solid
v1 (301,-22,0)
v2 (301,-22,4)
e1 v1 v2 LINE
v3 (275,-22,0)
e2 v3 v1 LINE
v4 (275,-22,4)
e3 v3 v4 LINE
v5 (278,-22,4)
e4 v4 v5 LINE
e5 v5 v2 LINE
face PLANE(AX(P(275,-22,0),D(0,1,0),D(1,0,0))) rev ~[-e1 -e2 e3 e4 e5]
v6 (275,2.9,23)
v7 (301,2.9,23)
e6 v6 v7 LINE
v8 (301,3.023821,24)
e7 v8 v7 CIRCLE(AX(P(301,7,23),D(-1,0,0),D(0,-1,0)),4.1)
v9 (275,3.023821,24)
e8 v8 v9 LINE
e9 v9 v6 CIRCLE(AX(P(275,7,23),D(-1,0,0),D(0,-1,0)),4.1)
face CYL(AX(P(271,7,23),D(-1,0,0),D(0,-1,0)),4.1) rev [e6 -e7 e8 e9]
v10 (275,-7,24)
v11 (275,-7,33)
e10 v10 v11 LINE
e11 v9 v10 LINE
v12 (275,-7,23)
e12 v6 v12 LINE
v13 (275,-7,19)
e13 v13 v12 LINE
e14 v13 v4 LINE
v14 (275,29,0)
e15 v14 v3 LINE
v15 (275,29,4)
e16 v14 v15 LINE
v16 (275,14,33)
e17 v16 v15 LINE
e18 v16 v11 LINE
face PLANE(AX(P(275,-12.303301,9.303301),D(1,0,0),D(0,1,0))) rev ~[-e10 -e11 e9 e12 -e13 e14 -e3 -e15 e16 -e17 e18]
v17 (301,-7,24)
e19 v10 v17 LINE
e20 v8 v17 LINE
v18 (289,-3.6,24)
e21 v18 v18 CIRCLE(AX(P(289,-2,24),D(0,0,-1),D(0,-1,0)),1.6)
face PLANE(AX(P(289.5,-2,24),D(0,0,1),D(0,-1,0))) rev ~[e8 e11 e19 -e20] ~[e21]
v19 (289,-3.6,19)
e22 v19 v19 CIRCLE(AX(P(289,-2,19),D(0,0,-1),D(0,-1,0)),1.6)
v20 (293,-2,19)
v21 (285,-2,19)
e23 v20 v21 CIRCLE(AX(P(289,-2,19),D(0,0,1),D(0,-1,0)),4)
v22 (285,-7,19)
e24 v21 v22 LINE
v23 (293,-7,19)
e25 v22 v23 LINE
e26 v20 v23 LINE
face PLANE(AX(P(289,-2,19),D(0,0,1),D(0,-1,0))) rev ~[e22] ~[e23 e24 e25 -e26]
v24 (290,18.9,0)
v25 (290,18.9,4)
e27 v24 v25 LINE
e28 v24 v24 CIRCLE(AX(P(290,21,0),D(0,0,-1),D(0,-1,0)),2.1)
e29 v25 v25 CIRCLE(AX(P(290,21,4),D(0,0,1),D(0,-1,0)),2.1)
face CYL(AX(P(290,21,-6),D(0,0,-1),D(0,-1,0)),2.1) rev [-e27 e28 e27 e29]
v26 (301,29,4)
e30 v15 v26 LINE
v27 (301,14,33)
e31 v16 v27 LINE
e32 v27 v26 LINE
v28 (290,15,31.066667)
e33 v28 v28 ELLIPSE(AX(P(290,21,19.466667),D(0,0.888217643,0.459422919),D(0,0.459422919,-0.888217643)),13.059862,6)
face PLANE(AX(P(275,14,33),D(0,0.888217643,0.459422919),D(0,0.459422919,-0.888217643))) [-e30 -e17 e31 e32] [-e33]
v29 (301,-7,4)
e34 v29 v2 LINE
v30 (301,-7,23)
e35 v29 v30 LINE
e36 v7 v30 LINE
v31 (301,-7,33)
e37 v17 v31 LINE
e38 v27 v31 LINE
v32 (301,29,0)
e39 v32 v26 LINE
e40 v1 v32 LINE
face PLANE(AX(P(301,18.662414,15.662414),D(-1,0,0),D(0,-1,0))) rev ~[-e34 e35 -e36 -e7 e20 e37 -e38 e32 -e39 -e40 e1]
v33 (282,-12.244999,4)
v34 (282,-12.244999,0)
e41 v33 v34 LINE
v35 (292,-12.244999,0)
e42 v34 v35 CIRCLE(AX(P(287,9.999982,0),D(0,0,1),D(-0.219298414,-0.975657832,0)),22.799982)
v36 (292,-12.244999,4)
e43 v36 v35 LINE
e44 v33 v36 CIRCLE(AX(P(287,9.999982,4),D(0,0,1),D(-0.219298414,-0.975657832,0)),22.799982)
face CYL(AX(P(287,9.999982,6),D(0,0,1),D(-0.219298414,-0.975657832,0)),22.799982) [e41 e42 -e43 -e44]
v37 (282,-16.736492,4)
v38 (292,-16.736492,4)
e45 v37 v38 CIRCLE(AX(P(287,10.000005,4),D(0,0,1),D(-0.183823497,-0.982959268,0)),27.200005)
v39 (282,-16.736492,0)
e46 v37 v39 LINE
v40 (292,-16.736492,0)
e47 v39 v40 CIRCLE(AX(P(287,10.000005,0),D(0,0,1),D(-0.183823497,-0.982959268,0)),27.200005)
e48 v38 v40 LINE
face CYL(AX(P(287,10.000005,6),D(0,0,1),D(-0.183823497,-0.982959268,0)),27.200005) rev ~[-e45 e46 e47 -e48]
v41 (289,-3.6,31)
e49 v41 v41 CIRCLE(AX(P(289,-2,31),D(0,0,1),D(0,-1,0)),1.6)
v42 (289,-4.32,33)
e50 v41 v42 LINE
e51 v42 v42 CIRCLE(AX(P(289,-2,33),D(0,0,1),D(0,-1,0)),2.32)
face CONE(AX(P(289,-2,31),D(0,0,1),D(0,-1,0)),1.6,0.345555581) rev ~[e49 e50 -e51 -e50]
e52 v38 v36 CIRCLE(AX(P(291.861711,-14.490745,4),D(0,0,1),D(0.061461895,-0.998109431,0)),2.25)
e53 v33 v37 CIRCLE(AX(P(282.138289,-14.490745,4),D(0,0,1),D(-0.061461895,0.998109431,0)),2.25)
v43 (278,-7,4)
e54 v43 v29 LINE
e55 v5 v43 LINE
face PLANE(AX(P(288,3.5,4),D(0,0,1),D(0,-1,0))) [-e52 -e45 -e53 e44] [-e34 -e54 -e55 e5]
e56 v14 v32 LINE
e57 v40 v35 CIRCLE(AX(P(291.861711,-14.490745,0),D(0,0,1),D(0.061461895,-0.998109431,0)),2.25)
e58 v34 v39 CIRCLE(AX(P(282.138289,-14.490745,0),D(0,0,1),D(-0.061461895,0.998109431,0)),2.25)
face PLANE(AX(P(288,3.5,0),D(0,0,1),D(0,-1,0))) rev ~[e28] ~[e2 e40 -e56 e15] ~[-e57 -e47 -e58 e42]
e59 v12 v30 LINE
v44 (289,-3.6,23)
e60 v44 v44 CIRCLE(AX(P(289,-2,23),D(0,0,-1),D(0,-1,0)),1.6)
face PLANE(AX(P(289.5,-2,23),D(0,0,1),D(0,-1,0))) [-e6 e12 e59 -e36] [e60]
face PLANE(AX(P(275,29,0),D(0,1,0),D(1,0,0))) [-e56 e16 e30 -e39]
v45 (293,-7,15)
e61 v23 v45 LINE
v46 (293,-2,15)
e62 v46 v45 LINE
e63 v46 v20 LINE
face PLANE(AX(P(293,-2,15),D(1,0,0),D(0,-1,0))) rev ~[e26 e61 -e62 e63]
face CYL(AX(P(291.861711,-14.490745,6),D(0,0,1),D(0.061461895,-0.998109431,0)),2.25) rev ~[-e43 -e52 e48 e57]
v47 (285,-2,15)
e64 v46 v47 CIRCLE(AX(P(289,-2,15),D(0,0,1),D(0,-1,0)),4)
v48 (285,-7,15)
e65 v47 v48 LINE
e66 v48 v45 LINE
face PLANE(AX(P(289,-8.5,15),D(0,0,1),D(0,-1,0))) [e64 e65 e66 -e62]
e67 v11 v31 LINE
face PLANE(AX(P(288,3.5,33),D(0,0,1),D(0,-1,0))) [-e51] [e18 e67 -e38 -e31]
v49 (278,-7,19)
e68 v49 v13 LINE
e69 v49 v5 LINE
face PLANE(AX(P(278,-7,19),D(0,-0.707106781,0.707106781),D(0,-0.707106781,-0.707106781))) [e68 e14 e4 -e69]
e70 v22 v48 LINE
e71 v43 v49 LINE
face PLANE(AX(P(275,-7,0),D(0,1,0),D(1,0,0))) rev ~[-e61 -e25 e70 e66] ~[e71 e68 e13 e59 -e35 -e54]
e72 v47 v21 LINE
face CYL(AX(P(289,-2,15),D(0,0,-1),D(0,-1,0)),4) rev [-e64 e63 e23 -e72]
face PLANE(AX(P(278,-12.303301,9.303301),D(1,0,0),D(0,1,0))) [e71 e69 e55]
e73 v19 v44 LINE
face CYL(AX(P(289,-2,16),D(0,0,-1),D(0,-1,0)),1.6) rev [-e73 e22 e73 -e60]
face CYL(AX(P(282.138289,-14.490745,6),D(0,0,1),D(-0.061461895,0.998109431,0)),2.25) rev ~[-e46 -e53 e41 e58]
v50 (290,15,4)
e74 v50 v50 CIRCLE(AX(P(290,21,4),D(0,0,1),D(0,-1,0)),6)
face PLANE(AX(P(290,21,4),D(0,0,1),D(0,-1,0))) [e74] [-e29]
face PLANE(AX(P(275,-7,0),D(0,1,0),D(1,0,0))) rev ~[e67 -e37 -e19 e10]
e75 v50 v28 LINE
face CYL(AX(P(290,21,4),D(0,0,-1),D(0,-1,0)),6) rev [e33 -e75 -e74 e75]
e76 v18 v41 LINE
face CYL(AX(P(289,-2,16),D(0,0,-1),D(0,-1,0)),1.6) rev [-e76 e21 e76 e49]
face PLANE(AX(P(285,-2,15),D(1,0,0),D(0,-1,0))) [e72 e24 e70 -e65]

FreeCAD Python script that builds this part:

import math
import FreeCAD as App
import Part
import Sketcher
from FreeCAD import Vector
Q = App.Units.Quantity

doc = App.newDocument("Part")
body = doc.addObject("PartDesign::Body", "Body")

sketch1 = body.newObject("Sketcher::SketchObject", "Sketch")
sketch1.AttachmentSupport = (doc.getObject("XY_Plane"), [""])
sketch1.MapMode = "FlatFace"
sketch1.AttachmentOffset = App.Placement(Vector(0, 0, 10), App.Rotation())
sketch1.addGeometry(Part.Circle(Vector(0, 0, 0), Vector(0, 0, 1), 6), False)
sketch1.addConstraint([
    Sketcher.Constraint("Coincident", 0, 3, -1, 1),
    Sketcher.Constraint("Diameter", 0, Q("12 mm")),
])
pad1 = body.newObject("PartDesign::Pad", "Pad")
pad1.Profile = sketch1
pad1.Length = 30
body2 = doc.addObject("PartDesign::Body", "Body001")

sketch2 = body2.newObject("Sketcher::SketchObject", "Sketch001")
sketch2.AttachmentSupport = (doc.getObject("XY_Plane001"), [""])
sketch2.MapMode = "FlatFace"
sketch2.addGeometry(Part.Circle(Vector(0, 0, 0), Vector(0, 0, 1), 2.1), False)
sketch2.addConstraint([
    Sketcher.Constraint("Coincident", 0, 3, -1, 1),
    Sketcher.Constraint("Diameter", 0, Q("4.2 mm")),
])
pad2 = body2.newObject("PartDesign::Pad", "Pad001")
pad2.Profile = sketch2
pad2.Length = 10
doc.recompute()

boolean = body2.newObject("PartDesign::Boolean", "Boolean")
boolean.Type = "Fuse"
boolean.addObjects([body])
body3 = doc.addObject("PartDesign::Body", "Body002")
doc.recompute()

body2.Placement = App.Placement(Vector(-14, 12, -29), App.Rotation(Vector(0, 0, 1), 0))
boolean2 = body3.newObject("PartDesign::Boolean", "Boolean001")
boolean2.Type = "Fuse"
boolean2.addObjects([body2])
body4 = doc.addObject("PartDesign::Body", "Body003")

sketch3 = body4.newObject("Sketcher::SketchObject", "Sketch002")
sketch3.AttachmentSupport = (doc.getObject("XY_Plane003"), [""])
sketch3.MapMode = "FlatFace"
sketch3.addGeometry(Part.Circle(Vector(0, 0, 0), Vector(0, 0, 1), 1.6), False)
sketch3.addConstraint([
    Sketcher.Constraint("Coincident", 0, 3, -1, 1),
    Sketcher.Constraint("Diameter", 0, Q("3.2 mm")),
])
pad3 = body4.newObject("PartDesign::Pad", "Pad002")
pad3.Profile = sketch3
pad3.Length = 15
body5 = doc.addObject("PartDesign::Body", "Body004")

sketch4 = body5.newObject("Sketcher::SketchObject", "Sketch003")
sketch4.AttachmentSupport = (doc.getObject("XZ_Plane004"), [""])
sketch4.MapMode = "FlatFace"
sketch4.addGeometry([
    Part.LineSegment(Vector(0, 15, 0), Vector(1.6, 15, 0)),
    Part.LineSegment(Vector(1.6, 15, 0), Vector(2.5, 17.5, 0)),
    Part.LineSegment(Vector(2.5, 17.5, 0), Vector(0, 17.5, 0)),
    Part.LineSegment(Vector(0, 17.5, 0), Vector(0, 15, 0)),
], False)
sketch4.addConstraint([
    Sketcher.Constraint("Coincident", 0, 2, 1, 1),
    Sketcher.Constraint("Coincident", 1, 2, 2, 1),
    Sketcher.Constraint("Coincident", 2, 2, 3, 1),
    Sketcher.Constraint("Coincident", 3, 2, 0, 1),
    Sketcher.Constraint("Horizontal", 0),
    Sketcher.Constraint("Horizontal", 2),
    Sketcher.Constraint("Vertical", 3),
    Sketcher.Constraint("PointOnObject", 2, 2, -2),
    Sketcher.Constraint("Equal", 2, 3),
    Sketcher.Constraint("DistanceX", 0, 1, 0, 2, Q("1.6 mm")),
    Sketcher.Constraint("DistanceX", 2, 2, 2, 1, Q("2.5 mm")),
    Sketcher.Constraint("DistanceY", -1, 1, 0, 2, Q("15 mm")),
])
revolution = body5.newObject("PartDesign::Revolution", "Revolution")
revolution.Profile = sketch4
revolution.ReferenceAxis = (sketch4, ["V_Axis"])
revolution.Angle = 360
doc.recompute()

boolean3 = body5.newObject("PartDesign::Boolean", "Boolean002")
boolean3.Type = "Fuse"
boolean3.addObjects([body4])
body6 = doc.addObject("PartDesign::Body", "Body005")
doc.recompute()

body5.Placement = App.Placement(Vector(9, 11, -7), App.Rotation(Vector(0, 0, 1), 0))
boolean4 = body6.newObject("PartDesign::Boolean", "Boolean003")
boolean4.Type = "Fuse"
boolean4.addObjects([body5])
body7 = doc.addObject("PartDesign::Body", "Body006")

sketch5 = body7.newObject("Sketcher::SketchObject", "Sketch004")
sketch5.AttachmentSupport = (doc.getObject("XY_Plane006"), [""])
sketch5.MapMode = "FlatFace"
sketch5.AttachmentOffset = App.Placement(Vector(0, 0, -8), App.Rotation())
sketch5.addGeometry(Part.Circle(Vector(9, 11, 0), Vector(0, 0, 1), 4), False)
sketch5.addConstraint([
    Sketcher.Constraint("Diameter", 0, Q("8 mm")),
    Sketcher.Constraint("DistanceX", -1, 1, 0, 3, Q("9 mm")),
    Sketcher.Constraint("DistanceY", -1, 1, 0, 3, Q("11 mm")),
])
pad4 = body7.newObject("PartDesign::Pad", "Pad003")
pad4.Profile = sketch5
pad4.Length = 4
body8 = doc.addObject("PartDesign::Body", "Body007")

sketch6 = body8.newObject("Sketcher::SketchObject", "Sketch005")
sketch6.AttachmentSupport = (doc.getObject("XY_Plane007"), [""])
sketch6.MapMode = "FlatFace"
sketch6.AttachmentOffset = App.Placement(Vector(0, 0, -8), App.Rotation())
sketch6.addGeometry([
    Part.LineSegment(Vector(9, 15, 0), Vector(9, 7, 0)),
    Part.LineSegment(Vector(9, 7, 0), Vector(22, 7, 0)),
    Part.LineSegment(Vector(22, 7, 0), Vector(22, 15, 0)),
    Part.LineSegment(Vector(22, 15, 0), Vector(9, 15, 0)),
], False)
sketch6.addConstraint([
    Sketcher.Constraint("Coincident", 0, 2, 1, 1),
    Sketcher.Constraint("Coincident", 1, 2, 2, 1),
    Sketcher.Constraint("Coincident", 2, 2, 3, 1),
    Sketcher.Constraint("Coincident", 3, 2, 0, 1),
    Sketcher.Constraint("Vertical", 0),
    Sketcher.Constraint("Horizontal", 1),
    Sketcher.Constraint("Vertical", 2),
    Sketcher.Constraint("Horizontal", 3),
    Sketcher.Constraint("DistanceX", 1, 1, 1, 2, Q("13 mm")),
    Sketcher.Constraint("DistanceY", 0, 2, 0, 1, Q("8 mm")),
    Sketcher.Constraint("DistanceX", -1, 1, 0, 2, Q("9 mm")),
    Sketcher.Constraint("DistanceY", -1, 1, 0, 2, Q("7 mm")),
])
pad5 = body8.newObject("PartDesign::Pad", "Pad004")
pad5.Profile = sketch6
pad5.Length = 4
doc.recompute()

boolean5 = body8.newObject("PartDesign::Boolean", "Boolean004")
boolean5.Type = "Fuse"
boolean5.addObjects([body7])
body9 = doc.addObject("PartDesign::Body", "Body008")

sketch7 = body9.newObject("Sketcher::SketchObject", "Sketch006")
sketch7.AttachmentSupport = (doc.getObject("XZ_Plane008"), [""])
sketch7.MapMode = "FlatFace"
sketch7.addGeometry([
    Part.LineSegment(Vector(-22, -19, 0), Vector(-7, -19, 0)),
    Part.LineSegment(Vector(-7, -19, 0), Vector(-7, -4, 0)),
    Part.LineSegment(Vector(-7, -4, 0), Vector(-22, -19, 0)),
], False)
sketch7.addConstraint([
    Sketcher.Constraint("Coincident", 0, 2, 1, 1),
    Sketcher.Constraint("Coincident", 1, 2, 2, 1),
    Sketcher.Constraint("Coincident", 2, 2, 0, 1),
    Sketcher.Constraint("Horizontal", 0),
    Sketcher.Constraint("Vertical", 1),
    Sketcher.Constraint("Equal", 0, 1),
    Sketcher.Constraint("DistanceX", 0, 1, 0, 2, Q("15 mm")),
    Sketcher.Constraint("DistanceX", 0, 2, -1, 1, Q("7 mm")),
    Sketcher.Constraint("DistanceY", 0, 2, -1, 1, Q("19 mm")),
])
pad6 = body9.newObject("PartDesign::Pad", "Pad005")
pad6.Profile = sketch7
pad6.Length = 3
pad6.Reversed = True
body10 = doc.addObject("PartDesign::Body", "Body009")
doc.recompute()

body9.Placement = App.Placement(Vector(7, 0, 0), App.Rotation(Vector(0, 0, 1), 180))
boolean6 = body10.newObject("PartDesign::Boolean", "Boolean005")
boolean6.Type = "Fuse"
boolean6.addObjects([body9])
body11 = doc.addObject("PartDesign::Body", "Body010")

sketch8 = body11.newObject("Sketcher::SketchObject", "Sketch007")
sketch8.AttachmentSupport = (doc.getObject("XY_Plane010"), [""])
sketch8.MapMode = "FlatFace"
sketch8.addGeometry([
    Part.ArcOfCircle(Part.Circle(Vector(9, 15, 0), Vector(0, 0, 1), 27.2), math.radians(-11), math.radians(11)),
    Part.ArcOfCircle(Part.Circle(Vector(33.5, 19.9, 0), Vector(0, 0, 1), 2.3), math.radians(4), math.radians(176)),
    Part.ArcOfCircle(Part.Circle(Vector(9, 15, 0), Vector(0, 0, 1), 22.8), math.radians(-13), math.radians(13)),
    Part.ArcOfCircle(Part.Circle(Vector(33.5, 10.1, 0), Vector(0, 0, 1), 2.3), math.radians(-176), math.radians(-4)),
], False)
sketch8.addConstraint([
    Sketcher.Constraint("Coincident", 0, 2, 1, 1),
    Sketcher.Constraint("Coincident", 1, 2, 2, 2),
    Sketcher.Constraint("Coincident", 2, 1, 3, 1),
    Sketcher.Constraint("Coincident", 3, 2, 0, 1),
    Sketcher.Constraint("Equal", 1, 3),
    Sketcher.Constraint("Horizontal", 0, 3, 2, 3),
    Sketcher.Constraint("Horizontal", 0, 2, 1, 2),
    Sketcher.Constraint("Horizontal", 2, 1, 3, 2),
    Sketcher.Constraint("Vertical", 1, 3, 3, 3),
    Sketcher.Constraint("Radius", 1, Q("2.25 mm")),
    Sketcher.Constraint("DistanceY", -1, 1, 0, 3, Q("15 mm")),
    Sketcher.Constraint("DistanceY", -1, 1, 0, 2, Q("20 mm")),
    Sketcher.Constraint("DistanceX", -1, 1, 1, 2, Q("31.244999 mm")),
    Sketcher.Constraint("Radius", 0, Q("27.200005 mm")),
    Sketcher.Constraint("Radius", 2, Q("22.799982 mm")),
    Sketcher.Constraint("DistanceY", -1, 1, 1, 3, Q("19.861711 mm")),
])
pad7 = body11.newObject("PartDesign::Pad", "Pad006")
pad7.Profile = sketch8
pad7.Length = 10
pad7.Reversed = True
body12 = doc.addObject("PartDesign::Body", "Body011")
doc.recompute()

body11.Placement = App.Placement(Vector(-12, -3, -17), App.Rotation(Vector(0, 0, 1), 0))
boolean7 = body12.newObject("PartDesign::Boolean", "Boolean006")
boolean7.Type = "Fuse"
boolean7.addObjects([body11])
body13 = doc.addObject("PartDesign::Body", "Body012")

sketch9 = body13.newObject("Sketcher::SketchObject", "Sketch008")
sketch9.AttachmentSupport = (doc.getObject("XY_Plane012"), [""])
sketch9.MapMode = "FlatFace"
sketch9.AttachmentOffset = App.Placement(Vector(0, 0, -23), App.Rotation())
sketch9.addGeometry([
    Part.LineSegment(Vector(-22, 26, 0), Vector(-22, 0, 0)),
    Part.LineSegment(Vector(-22, 0, 0), Vector(29, 0, 0)),
    Part.LineSegment(Vector(29, 0, 0), Vector(29, 26, 0)),
    Part.LineSegment(Vector(29, 26, 0), Vector(-22, 26, 0)),
], False)
sketch9.addConstraint([
    Sketcher.Constraint("Coincident", 0, 2, 1, 1),
    Sketcher.Constraint("Coincident", 1, 2, 2, 1),
    Sketcher.Constraint("Coincident", 2, 2, 3, 1),
    Sketcher.Constraint("Coincident", 3, 2, 0, 1),
    Sketcher.Constraint("Vertical", 0),
    Sketcher.Constraint("Horizontal", 1),
    Sketcher.Constraint("Vertical", 2),
    Sketcher.Constraint("Horizontal", 3),
    Sketcher.Constraint("PointOnObject", 0, 2, -1),
    Sketcher.Constraint("DistanceX", 1, 1, 1, 2, Q("51 mm")),
    Sketcher.Constraint("DistanceY", 0, 2, 0, 1, Q("26 mm")),
    Sketcher.Constraint("DistanceX", 0, 2, -1, 1, Q("22 mm")),
])
pad8 = body13.newObject("PartDesign::Pad", "Pad007")
pad8.Profile = sketch9
pad8.Length = 4
doc.recompute()

boolean8 = body13.newObject("PartDesign::Boolean", "Boolean007")
boolean8.Type = "Cut"
boolean8.addObjects([body12])
body14 = doc.addObject("PartDesign::Body", "Body013")
doc.recompute()

body13.Placement = App.Placement(Vector(0, -3, 0), App.Rotation(Vector(0, 0, 1), 0))
boolean9 = body14.newObject("PartDesign::Boolean", "Boolean008")
boolean9.Type = "Fuse"
boolean9.addObjects([body13])
body15 = doc.addObject("PartDesign::Body", "Body014")

sketch10 = body15.newObject("Sketcher::SketchObject", "Sketch009")
sketch10.AttachmentSupport = (doc.getObject("XZ_Plane014"), [""])
sketch10.MapMode = "FlatFace"
sketch10.addGeometry([
    Part.LineSegment(Vector(-22, -19, 0), Vector(-7, -19, 0)),
    Part.LineSegment(Vector(-7, -19, 0), Vector(-7, 10, 0)),
    Part.LineSegment(Vector(-7, 10, 0), Vector(-22, -19, 0)),
], False)
sketch10.addConstraint([
    Sketcher.Constraint("Coincident", 0, 2, 1, 1),
    Sketcher.Constraint("Coincident", 1, 2, 2, 1),
    Sketcher.Constraint("Coincident", 2, 2, 0, 1),
    Sketcher.Constraint("Horizontal", 0),
    Sketcher.Constraint("Vertical", 1),
    Sketcher.Constraint("DistanceX", 0, 1, 0, 2, Q("15 mm")),
    Sketcher.Constraint("DistanceY", 1, 1, 1, 2, Q("29 mm")),
    Sketcher.Constraint("DistanceX", 0, 2, -1, 1, Q("7 mm")),
    Sketcher.Constraint("DistanceY", 0, 2, -1, 1, Q("19 mm")),
])
pad9 = body15.newObject("PartDesign::Pad", "Pad008")
pad9.Profile = sketch10
pad9.Length = 26
pad9.Reversed = True
body16 = doc.addObject("PartDesign::Body", "Body015")
doc.recompute()

body15.Placement = App.Placement(Vector(0, -3, 0), App.Rotation(Vector(0, 0, 1), 0))
boolean10 = body16.newObject("PartDesign::Boolean", "Boolean009")
boolean10.Type = "Fuse"
boolean10.addObjects([body15])
body17 = doc.addObject("PartDesign::Body", "Body016")

sketch11 = body17.newObject("Sketcher::SketchObject", "Sketch010")
sketch11.AttachmentSupport = (doc.getObject("XZ_Plane016"), [""])
sketch11.MapMode = "FlatFace"
sketch11.AttachmentOffset = App.Placement(Vector(0, 0, 7), App.Rotation())
sketch11.addGeometry(Part.Circle(Vector(0, 0, 0), Vector(0, 0, 1), 4.1), False)
sketch11.addConstraint([
    Sketcher.Constraint("Coincident", 0, 3, -1, 1),
    Sketcher.Constraint("Diameter", 0, Q("8.2 mm")),
])
pad10 = body17.newObject("PartDesign::Pad", "Pad009")
pad10.Profile = sketch11
pad10.Length = 240
pad10.Reversed = True
body18 = doc.addObject("PartDesign::Body", "Body017")

sketch12 = body18.newObject("Sketcher::SketchObject", "Sketch011")
sketch12.AttachmentSupport = (doc.getObject("XY_Plane017"), [""])
sketch12.MapMode = "FlatFace"
sketch12.addGeometry([
    Part.LineSegment(Vector(3, 29, 0), Vector(3, -6, 0)),
    Part.LineSegment(Vector(3, -6, 0), Vector(15, -6, 0)),
    Part.LineSegment(Vector(15, -6, 0), Vector(15, 29, 0)),
    Part.LineSegment(Vector(15, 29, 0), Vector(3, 29, 0)),
], False)
sketch12.addConstraint([
    Sketcher.Constraint("Coincident", 0, 2, 1, 1),
    Sketcher.Constraint("Coincident", 1, 2, 2, 1),
    Sketcher.Constraint("Coincident", 2, 2, 3, 1),
    Sketcher.Constraint("Coincident", 3, 2, 0, 1),
    Sketcher.Constraint("Vertical", 0),
    Sketcher.Constraint("Horizontal", 1),
    Sketcher.Constraint("Vertical", 2),
    Sketcher.Constraint("Horizontal", 3),
    Sketcher.Constraint("DistanceX", 1, 1, 1, 2, Q("12 mm")),
    Sketcher.Constraint("DistanceY", 0, 2, 0, 1, Q("35 mm")),
    Sketcher.Constraint("DistanceX", -1, 1, 0, 2, Q("3 mm")),
    Sketcher.Constraint("DistanceY", 0, 2, -1, 1, Q("6 mm")),
])
pad11 = body18.newObject("PartDesign::Pad", "Pad010")
pad11.Profile = sketch12
pad11.Length = 1
body19 = doc.addObject("PartDesign::Body", "Body018")

sketch13 = body19.newObject("Sketcher::SketchObject", "Sketch012")
sketch13.AttachmentSupport = (doc.getObject("XY_Plane018"), [""])
sketch13.MapMode = "FlatFace"
sketch13.AttachmentOffset = App.Placement(Vector(0, 0, -23), App.Rotation())
sketch13.addGeometry([
    Part.LineSegment(Vector(-7, 23, 0), Vector(-7, -3, 0)),
    Part.LineSegment(Vector(-7, -3, 0), Vector(14, -3, 0)),
    Part.LineSegment(Vector(14, -3, 0), Vector(14, 23, 0)),
    Part.LineSegment(Vector(14, 23, 0), Vector(-7, 23, 0)),
], False)
sketch13.addConstraint([
    Sketcher.Constraint("Coincident", 0, 2, 1, 1),
    Sketcher.Constraint("Coincident", 1, 2, 2, 1),
    Sketcher.Constraint("Coincident", 2, 2, 3, 1),
    Sketcher.Constraint("Coincident", 3, 2, 0, 1),
    Sketcher.Constraint("Vertical", 0),
    Sketcher.Constraint("Horizontal", 1),
    Sketcher.Constraint("Vertical", 2),
    Sketcher.Constraint("Horizontal", 3),
    Sketcher.Constraint("DistanceX", 1, 1, 1, 2, Q("21 mm")),
    Sketcher.Constraint("DistanceY", 0, 2, 0, 1, Q("26 mm")),
    Sketcher.Constraint("DistanceX", 0, 2, -1, 1, Q("7 mm")),
    Sketcher.Constraint("DistanceY", 0, 2, -1, 1, Q("3 mm")),
])
pad12 = body19.newObject("PartDesign::Pad", "Pad011")
pad12.Profile = sketch13
pad12.Length = 33
doc.recompute()

boolean11 = body19.newObject("PartDesign::Boolean", "Boolean010")
boolean11.Type = "Cut"
boolean11.addObjects([body18])
doc.recompute()

boolean12 = body19.newObject("PartDesign::Boolean", "Boolean011")
boolean12.Type = "Cut"
boolean12.addObjects([body17])
doc.recompute()

boolean13 = body19.newObject("PartDesign::Boolean", "Boolean012")
boolean13.Type = "Fuse"
boolean13.addObjects([body14])
doc.recompute()

boolean14 = body19.newObject("PartDesign::Boolean", "Boolean013")
boolean14.Type = "Fuse"
boolean14.addObjects([body16])
doc.recompute()

boolean15 = body19.newObject("PartDesign::Boolean", "Boolean014")
boolean15.Type = "Fuse"
boolean15.addObjects([body10])
doc.recompute()

boolean16 = body19.newObject("PartDesign::Boolean", "Boolean015")
boolean16.Type = "Cut"
boolean16.addObjects([body8])
doc.recompute()

boolean17 = body19.newObject("PartDesign::Boolean", "Boolean016")
boolean17.Type = "Cut"
boolean17.addObjects([body6])
doc.recompute()

boolean18 = body19.newObject("PartDesign::Boolean", "Boolean017")
boolean18.Type = "Cut"
boolean18.addObjects([body3])
body20 = doc.addObject("PartDesign::Body", "Body019")
doc.recompute()

body19.Placement = App.Placement(Vector(278, 7, 23), App.Rotation(Vector(0, 0, -1), 90))
boolean19 = body20.newObject("PartDesign::Boolean", "Boolean018")
boolean19.Type = "Fuse"
boolean19.addObjects([body19])

doc.recompute()
